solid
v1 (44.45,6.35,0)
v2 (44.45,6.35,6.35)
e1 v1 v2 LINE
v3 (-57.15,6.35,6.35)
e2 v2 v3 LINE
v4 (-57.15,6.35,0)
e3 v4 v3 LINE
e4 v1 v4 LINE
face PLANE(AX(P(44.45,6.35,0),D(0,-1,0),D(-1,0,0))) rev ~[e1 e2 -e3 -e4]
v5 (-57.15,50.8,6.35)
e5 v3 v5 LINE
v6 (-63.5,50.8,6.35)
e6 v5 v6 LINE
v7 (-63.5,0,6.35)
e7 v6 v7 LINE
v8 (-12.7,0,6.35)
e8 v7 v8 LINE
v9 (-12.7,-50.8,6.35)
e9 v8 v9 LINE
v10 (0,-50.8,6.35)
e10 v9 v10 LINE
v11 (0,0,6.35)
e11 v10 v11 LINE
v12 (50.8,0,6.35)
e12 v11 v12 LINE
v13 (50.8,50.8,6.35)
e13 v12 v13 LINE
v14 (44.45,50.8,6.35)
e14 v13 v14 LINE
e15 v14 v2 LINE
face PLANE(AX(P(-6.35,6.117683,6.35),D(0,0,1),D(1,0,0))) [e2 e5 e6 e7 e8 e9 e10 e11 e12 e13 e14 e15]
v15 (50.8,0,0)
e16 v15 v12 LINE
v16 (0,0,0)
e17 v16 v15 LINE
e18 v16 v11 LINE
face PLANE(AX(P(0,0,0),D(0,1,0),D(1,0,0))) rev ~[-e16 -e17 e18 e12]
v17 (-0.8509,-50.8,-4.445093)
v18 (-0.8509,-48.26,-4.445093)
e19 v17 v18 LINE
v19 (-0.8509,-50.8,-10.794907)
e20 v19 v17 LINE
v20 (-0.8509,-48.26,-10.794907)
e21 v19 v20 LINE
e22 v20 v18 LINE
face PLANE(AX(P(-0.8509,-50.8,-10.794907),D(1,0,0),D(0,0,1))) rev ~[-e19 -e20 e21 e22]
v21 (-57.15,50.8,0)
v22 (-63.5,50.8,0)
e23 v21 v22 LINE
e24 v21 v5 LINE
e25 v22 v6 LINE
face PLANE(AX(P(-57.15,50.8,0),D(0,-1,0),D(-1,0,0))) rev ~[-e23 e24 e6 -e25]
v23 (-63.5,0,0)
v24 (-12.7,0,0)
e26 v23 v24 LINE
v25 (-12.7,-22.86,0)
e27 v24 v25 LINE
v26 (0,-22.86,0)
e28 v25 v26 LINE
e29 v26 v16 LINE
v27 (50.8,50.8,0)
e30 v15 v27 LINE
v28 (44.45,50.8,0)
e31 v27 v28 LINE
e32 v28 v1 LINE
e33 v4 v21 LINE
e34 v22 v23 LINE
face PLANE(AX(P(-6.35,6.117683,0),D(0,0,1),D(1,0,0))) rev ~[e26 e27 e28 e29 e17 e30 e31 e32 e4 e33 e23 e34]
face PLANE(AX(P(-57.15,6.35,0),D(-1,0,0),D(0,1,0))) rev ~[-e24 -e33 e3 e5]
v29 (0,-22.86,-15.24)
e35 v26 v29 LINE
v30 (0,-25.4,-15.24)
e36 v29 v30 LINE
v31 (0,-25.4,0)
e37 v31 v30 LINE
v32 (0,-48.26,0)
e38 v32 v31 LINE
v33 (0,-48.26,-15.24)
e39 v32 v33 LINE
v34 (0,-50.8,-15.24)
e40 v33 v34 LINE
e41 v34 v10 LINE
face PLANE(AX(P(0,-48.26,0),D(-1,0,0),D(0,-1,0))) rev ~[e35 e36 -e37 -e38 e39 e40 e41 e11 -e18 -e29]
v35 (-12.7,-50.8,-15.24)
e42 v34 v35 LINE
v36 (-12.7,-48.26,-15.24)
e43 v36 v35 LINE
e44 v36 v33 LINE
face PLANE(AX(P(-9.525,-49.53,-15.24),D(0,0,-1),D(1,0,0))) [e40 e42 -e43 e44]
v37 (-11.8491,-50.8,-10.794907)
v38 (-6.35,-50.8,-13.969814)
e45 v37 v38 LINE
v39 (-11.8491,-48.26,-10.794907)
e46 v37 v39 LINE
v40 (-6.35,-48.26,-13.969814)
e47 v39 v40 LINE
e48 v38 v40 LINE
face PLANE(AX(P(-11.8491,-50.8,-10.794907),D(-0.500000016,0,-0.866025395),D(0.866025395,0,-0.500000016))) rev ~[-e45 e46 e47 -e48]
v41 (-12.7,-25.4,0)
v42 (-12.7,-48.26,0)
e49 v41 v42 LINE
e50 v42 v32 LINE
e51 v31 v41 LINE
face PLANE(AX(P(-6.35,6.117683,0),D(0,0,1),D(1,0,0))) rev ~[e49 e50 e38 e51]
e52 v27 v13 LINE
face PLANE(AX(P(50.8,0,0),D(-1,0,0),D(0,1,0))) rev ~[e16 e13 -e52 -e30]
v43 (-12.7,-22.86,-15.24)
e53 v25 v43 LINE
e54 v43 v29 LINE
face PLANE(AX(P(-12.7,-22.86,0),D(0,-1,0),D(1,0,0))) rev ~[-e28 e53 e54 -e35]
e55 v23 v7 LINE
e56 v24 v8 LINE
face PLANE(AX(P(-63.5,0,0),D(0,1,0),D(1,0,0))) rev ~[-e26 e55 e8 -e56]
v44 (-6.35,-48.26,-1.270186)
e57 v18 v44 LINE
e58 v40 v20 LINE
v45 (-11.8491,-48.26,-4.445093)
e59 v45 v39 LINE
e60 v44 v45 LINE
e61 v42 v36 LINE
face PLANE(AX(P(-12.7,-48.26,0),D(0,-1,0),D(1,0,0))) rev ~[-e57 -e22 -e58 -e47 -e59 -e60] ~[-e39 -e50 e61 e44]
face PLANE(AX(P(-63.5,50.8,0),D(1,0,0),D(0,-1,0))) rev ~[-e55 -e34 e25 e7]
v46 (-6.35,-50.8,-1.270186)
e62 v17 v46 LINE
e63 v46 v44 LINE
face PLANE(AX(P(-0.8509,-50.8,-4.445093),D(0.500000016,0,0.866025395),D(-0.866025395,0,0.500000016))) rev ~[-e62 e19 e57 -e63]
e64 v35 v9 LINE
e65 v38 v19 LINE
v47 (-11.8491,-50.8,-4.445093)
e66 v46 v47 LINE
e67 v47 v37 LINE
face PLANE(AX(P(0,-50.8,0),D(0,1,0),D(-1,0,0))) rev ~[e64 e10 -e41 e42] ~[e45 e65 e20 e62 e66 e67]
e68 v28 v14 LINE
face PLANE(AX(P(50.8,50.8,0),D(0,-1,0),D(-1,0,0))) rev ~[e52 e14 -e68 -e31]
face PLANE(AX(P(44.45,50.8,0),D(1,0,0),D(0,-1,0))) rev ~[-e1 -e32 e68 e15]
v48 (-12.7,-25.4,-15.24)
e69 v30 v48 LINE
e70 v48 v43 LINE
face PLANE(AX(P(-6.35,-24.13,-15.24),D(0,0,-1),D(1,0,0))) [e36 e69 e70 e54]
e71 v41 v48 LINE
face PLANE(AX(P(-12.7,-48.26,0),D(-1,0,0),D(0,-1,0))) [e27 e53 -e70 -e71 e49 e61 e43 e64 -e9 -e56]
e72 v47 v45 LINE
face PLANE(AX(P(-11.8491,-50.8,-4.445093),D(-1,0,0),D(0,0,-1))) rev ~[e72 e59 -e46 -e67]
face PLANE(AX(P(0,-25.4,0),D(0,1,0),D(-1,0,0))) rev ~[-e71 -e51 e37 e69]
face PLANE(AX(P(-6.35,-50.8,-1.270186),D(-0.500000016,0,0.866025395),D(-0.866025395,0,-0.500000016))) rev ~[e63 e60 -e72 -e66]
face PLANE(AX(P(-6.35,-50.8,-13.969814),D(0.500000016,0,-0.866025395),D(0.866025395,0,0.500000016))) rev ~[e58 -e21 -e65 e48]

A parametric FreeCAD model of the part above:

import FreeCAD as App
import Part
import Sketcher

V = App.Vector
Q = App.Units.Quantity

doc = App.newDocument("Part")
body = doc.addObject("PartDesign::Body", "Body")

# Sketch on XY plane
sketch1 = doc.addObject("Sketcher::SketchObject", "Sketch")
body.addObject(sketch1)
sketch1.AttachmentSupport = (doc.XY_Plane, [""])
sketch1.MapMode = "FlatFace"
sketch1.addGeometry([
    Part.LineSegment(V(-13, -51, 0), V(0, -51, 0)),  # 0
    Part.LineSegment(V(0, -51, 0), V(0, 0, 0)),  # 1
    Part.LineSegment(V(0, 0, 0), V(51, 0, 0)),  # 2
    Part.LineSegment(V(51, 0, 0), V(51, 51, 0)),  # 3
    Part.LineSegment(V(51, 51, 0), V(44, 51, 0)),  # 4
    Part.LineSegment(V(44, 51, 0), V(44, 6, 0)),  # 5
    Part.LineSegment(V(44, 6, 0), V(-57, 6, 0)),  # 6
    Part.LineSegment(V(-57, 6, 0), V(-57, 51, 0)),  # 7
    Part.LineSegment(V(-57, 51, 0), V(-64, 51, 0)),  # 8
    Part.LineSegment(V(-64, 51, 0), V(-64, 0, 0)),  # 9
    Part.LineSegment(V(-64, 0, 0), V(-13, 0, 0)),  # 10
    Part.LineSegment(V(-13, 0, 0), V(-13, -51, 0)),  # 11
], False)
sketch1.addConstraint([
    Sketcher.Constraint("Coincident", 0, 2, 1, 1),
    Sketcher.Constraint("Coincident", 1, 2, 2, 1),
    Sketcher.Constraint("Coincident", 2, 2, 3, 1),
    Sketcher.Constraint("Coincident", 3, 2, 4, 1),
    Sketcher.Constraint("Coincident", 4, 2, 5, 1),
    Sketcher.Constraint("Coincident", 5, 2, 6, 1),
    Sketcher.Constraint("Coincident", 6, 2, 7, 1),
    Sketcher.Constraint("Coincident", 7, 2, 8, 1),
    Sketcher.Constraint("Coincident", 8, 2, 9, 1),
    Sketcher.Constraint("Coincident", 9, 2, 10, 1),
    Sketcher.Constraint("Coincident", 10, 2, 11, 1),
    Sketcher.Constraint("Coincident", 11, 2, 0, 1),
    Sketcher.Constraint("Horizontal", 0),
    Sketcher.Constraint("Vertical", 1),
    Sketcher.Constraint("Horizontal", 2),
    Sketcher.Constraint("Vertical", 3),
    Sketcher.Constraint("Horizontal", 4),
    Sketcher.Constraint("Vertical", 5),
    Sketcher.Constraint("Horizontal", 6),
    Sketcher.Constraint("Vertical", 7),
    Sketcher.Constraint("Horizontal", 8),
    Sketcher.Constraint("Vertical", 9),
    Sketcher.Constraint("Horizontal", 10),
    Sketcher.Constraint("Vertical", 11),
    Sketcher.Constraint("Coincident", 1, 2, -1, 1),
    Sketcher.Constraint("PointOnObject", 9, 2, -1),
    Sketcher.Constraint("Horizontal", 4, 2, 7, 2),
    Sketcher.Constraint("Equal", 4, 8),
    Sketcher.Constraint("Equal", 2, 10),
    Sketcher.Constraint("Equal", 10, 1),
    Sketcher.Constraint("Equal", 1, 3),
    Sketcher.Constraint("DistanceX", 2, 1, 2, 2, Q("2 in")),
    Sketcher.Constraint("DistanceX", 6, 2, 6, 1, Q("4 in")),
    Sketcher.Constraint("DistanceX", 0, 1, 0, 2, Q("0.5 in")),
    Sketcher.Constraint("DistanceY", 5, 2, 5, 1, Q("1.75 in")),
])
pad1 = doc.addObject("PartDesign::Pad", "Pad")
body.addObject(pad1)
pad1.Profile = sketch1
pad1.Length = Q("0.25 in")

# Sketch on XY plane
sketch2 = doc.addObject("Sketcher::SketchObject", "Sketch001")
body.addObject(sketch2)
sketch2.AttachmentSupport = (doc.XY_Plane, [""])
sketch2.MapMode = "FlatFace"
sketch2.addGeometry([
    Part.LineSegment(V(0, -25.4, 0), V(-12.7, -25.4, 0)),  # 0
    Part.LineSegment(V(-12.7, -25.4, 0), V(-12.7, -22.9, 0)),  # 1
    Part.LineSegment(V(-12.7, -22.9, 0), V(0, -22.9, 0)),  # 2
    Part.LineSegment(V(0, -22.9, 0), V(0, -25.4, 0)),  # 3
    Part.LineSegment(V(-12.7, -50.8, 0), V(-12.7, -48.3, 0)),  # 4
    Part.LineSegment(V(-12.7, -48.3, 0), V(0, -48.3, 0)),  # 5
    Part.LineSegment(V(0, -48.3, 0), V(0, -50.8, 0)),  # 6
    Part.LineSegment(V(0, -50.8, 0), V(-12.7, -50.8, 0)),  # 7
], False)
sketch2.addConstraint([
    Sketcher.Constraint("Coincident", 0, 2, 1, 1),
    Sketcher.Constraint("Coincident", 1, 2, 2, 1),
    Sketcher.Constraint("Coincident", 2, 2, 3, 1),
    Sketcher.Constraint("Coincident", 3, 2, 0, 1),
    Sketcher.Constraint("Coincident", 4, 2, 5, 1),
    Sketcher.Constraint("Coincident", 5, 2, 6, 1),
    Sketcher.Constraint("Coincident", 6, 2, 7, 1),
    Sketcher.Constraint("Coincident", 7, 2, 4, 1),
    Sketcher.Constraint("Horizontal", 0),
    Sketcher.Constraint("Vertical", 1),
    Sketcher.Constraint("Horizontal", 2),
    Sketcher.Constraint("Vertical", 3),
    Sketcher.Constraint("Vertical", 4),
    Sketcher.Constraint("Horizontal", 5),
    Sketcher.Constraint("Vertical", 6),
    Sketcher.Constraint("Horizontal", 7),
    Sketcher.Constraint("PointOnObject", 2, 2, -2),
    Sketcher.Constraint("PointOnObject", 5, 2, -2),
    Sketcher.Constraint("Vertical", 1, 2, 4, 2),
    Sketcher.Constraint("Equal", 3, 4),
    Sketcher.Constraint("DistanceX", 0, 2, 0, 1, Q("0.5 in")),
    Sketcher.Constraint("DistanceY", 1, 1, 1, 2, Q("0.1 in")),
    Sketcher.Constraint("DistanceY", 0, 2, -1, 1, Q("1 in")),
    Sketcher.Constraint("DistanceY", 6, 2, -1, 1, Q("2 in")),
])
pad2 = doc.addObject("PartDesign::Pad", "Pad001")
body.addObject(pad2)
pad2.Profile = sketch2
pad2.Length = Q("0.6 in")
pad2.Reversed = True

# Sketch on XZ plane
sketch3 = doc.addObject("Sketcher::SketchObject", "Sketch002")
body.addObject(sketch3)
sketch3.AttachmentSupport = (doc.XZ_Plane, [""])
sketch3.MapMode = "FlatFace"
sketch3.AttachmentOffset = App.Placement(V(0, 0, 2 * 25.4), App.Rotation())
sketch3.addGeometry([
    Part.LineSegment(V(-12, -11, 0), V(-6, -14, 0)),  # 0
    Part.LineSegment(V(-6, -14, 0), V(-1, -11, 0)),  # 1
    Part.LineSegment(V(-1, -11, 0), V(-1, -4, 0)),  # 2
    Part.LineSegment(V(-1, -4, 0), V(-6, -1, 0)),  # 3
    Part.LineSegment(V(-6, -1, 0), V(-12, -4, 0)),  # 4
    Part.LineSegment(V(-12, -4, 0), V(-12, -11, 0)),  # 5
], False)
sketch3.addConstraint([
    Sketcher.Constraint("Coincident", 0, 2, 1, 1),
    Sketcher.Constraint("Coincident", 1, 2, 2, 1),
    Sketcher.Constraint("Coincident", 2, 2, 3, 1),
    Sketcher.Constraint("Coincident", 3, 2, 4, 1),
    Sketcher.Constraint("Coincident", 4, 2, 5, 1),
    Sketcher.Constraint("Coincident", 5, 2, 0, 1),
    Sketcher.Constraint("Vertical", 2),
    Sketcher.Constraint("Vertical", 5),
    Sketcher.Constraint("Parallel", 0, 3),
    Sketcher.Constraint("Parallel", 1, 4),
    Sketcher.Constraint("Horizontal", 2, 2, 4, 2),
    Sketcher.Constraint("Horizontal", 1, 2, 5, 2),
    Sketcher.Constraint("Vertical", 0, 2, 3, 2),
    Sketcher.Constraint("Angle", 0, Q("-30.000001 deg")),
    Sketcher.Constraint("DistanceX", 0, 2, -1, 1, Q("0.25 in")),
    Sketcher.Constraint("DistanceX", 4, 2, 2, 2, Q("0.433 in")),
    Sketcher.Constraint("DistanceY", 2, 1, 2, 2, 6.349814),
    Sketcher.Constraint("DistanceY", 0, 2, -1, 1, 13.969814),
])
pocket1 = doc.addObject("PartDesign::Pocket", "Pocket")
body.addObject(pocket1)
pocket1.Profile = sketch3
pocket1.Length = Q("0.1 in")

doc.recompute()
